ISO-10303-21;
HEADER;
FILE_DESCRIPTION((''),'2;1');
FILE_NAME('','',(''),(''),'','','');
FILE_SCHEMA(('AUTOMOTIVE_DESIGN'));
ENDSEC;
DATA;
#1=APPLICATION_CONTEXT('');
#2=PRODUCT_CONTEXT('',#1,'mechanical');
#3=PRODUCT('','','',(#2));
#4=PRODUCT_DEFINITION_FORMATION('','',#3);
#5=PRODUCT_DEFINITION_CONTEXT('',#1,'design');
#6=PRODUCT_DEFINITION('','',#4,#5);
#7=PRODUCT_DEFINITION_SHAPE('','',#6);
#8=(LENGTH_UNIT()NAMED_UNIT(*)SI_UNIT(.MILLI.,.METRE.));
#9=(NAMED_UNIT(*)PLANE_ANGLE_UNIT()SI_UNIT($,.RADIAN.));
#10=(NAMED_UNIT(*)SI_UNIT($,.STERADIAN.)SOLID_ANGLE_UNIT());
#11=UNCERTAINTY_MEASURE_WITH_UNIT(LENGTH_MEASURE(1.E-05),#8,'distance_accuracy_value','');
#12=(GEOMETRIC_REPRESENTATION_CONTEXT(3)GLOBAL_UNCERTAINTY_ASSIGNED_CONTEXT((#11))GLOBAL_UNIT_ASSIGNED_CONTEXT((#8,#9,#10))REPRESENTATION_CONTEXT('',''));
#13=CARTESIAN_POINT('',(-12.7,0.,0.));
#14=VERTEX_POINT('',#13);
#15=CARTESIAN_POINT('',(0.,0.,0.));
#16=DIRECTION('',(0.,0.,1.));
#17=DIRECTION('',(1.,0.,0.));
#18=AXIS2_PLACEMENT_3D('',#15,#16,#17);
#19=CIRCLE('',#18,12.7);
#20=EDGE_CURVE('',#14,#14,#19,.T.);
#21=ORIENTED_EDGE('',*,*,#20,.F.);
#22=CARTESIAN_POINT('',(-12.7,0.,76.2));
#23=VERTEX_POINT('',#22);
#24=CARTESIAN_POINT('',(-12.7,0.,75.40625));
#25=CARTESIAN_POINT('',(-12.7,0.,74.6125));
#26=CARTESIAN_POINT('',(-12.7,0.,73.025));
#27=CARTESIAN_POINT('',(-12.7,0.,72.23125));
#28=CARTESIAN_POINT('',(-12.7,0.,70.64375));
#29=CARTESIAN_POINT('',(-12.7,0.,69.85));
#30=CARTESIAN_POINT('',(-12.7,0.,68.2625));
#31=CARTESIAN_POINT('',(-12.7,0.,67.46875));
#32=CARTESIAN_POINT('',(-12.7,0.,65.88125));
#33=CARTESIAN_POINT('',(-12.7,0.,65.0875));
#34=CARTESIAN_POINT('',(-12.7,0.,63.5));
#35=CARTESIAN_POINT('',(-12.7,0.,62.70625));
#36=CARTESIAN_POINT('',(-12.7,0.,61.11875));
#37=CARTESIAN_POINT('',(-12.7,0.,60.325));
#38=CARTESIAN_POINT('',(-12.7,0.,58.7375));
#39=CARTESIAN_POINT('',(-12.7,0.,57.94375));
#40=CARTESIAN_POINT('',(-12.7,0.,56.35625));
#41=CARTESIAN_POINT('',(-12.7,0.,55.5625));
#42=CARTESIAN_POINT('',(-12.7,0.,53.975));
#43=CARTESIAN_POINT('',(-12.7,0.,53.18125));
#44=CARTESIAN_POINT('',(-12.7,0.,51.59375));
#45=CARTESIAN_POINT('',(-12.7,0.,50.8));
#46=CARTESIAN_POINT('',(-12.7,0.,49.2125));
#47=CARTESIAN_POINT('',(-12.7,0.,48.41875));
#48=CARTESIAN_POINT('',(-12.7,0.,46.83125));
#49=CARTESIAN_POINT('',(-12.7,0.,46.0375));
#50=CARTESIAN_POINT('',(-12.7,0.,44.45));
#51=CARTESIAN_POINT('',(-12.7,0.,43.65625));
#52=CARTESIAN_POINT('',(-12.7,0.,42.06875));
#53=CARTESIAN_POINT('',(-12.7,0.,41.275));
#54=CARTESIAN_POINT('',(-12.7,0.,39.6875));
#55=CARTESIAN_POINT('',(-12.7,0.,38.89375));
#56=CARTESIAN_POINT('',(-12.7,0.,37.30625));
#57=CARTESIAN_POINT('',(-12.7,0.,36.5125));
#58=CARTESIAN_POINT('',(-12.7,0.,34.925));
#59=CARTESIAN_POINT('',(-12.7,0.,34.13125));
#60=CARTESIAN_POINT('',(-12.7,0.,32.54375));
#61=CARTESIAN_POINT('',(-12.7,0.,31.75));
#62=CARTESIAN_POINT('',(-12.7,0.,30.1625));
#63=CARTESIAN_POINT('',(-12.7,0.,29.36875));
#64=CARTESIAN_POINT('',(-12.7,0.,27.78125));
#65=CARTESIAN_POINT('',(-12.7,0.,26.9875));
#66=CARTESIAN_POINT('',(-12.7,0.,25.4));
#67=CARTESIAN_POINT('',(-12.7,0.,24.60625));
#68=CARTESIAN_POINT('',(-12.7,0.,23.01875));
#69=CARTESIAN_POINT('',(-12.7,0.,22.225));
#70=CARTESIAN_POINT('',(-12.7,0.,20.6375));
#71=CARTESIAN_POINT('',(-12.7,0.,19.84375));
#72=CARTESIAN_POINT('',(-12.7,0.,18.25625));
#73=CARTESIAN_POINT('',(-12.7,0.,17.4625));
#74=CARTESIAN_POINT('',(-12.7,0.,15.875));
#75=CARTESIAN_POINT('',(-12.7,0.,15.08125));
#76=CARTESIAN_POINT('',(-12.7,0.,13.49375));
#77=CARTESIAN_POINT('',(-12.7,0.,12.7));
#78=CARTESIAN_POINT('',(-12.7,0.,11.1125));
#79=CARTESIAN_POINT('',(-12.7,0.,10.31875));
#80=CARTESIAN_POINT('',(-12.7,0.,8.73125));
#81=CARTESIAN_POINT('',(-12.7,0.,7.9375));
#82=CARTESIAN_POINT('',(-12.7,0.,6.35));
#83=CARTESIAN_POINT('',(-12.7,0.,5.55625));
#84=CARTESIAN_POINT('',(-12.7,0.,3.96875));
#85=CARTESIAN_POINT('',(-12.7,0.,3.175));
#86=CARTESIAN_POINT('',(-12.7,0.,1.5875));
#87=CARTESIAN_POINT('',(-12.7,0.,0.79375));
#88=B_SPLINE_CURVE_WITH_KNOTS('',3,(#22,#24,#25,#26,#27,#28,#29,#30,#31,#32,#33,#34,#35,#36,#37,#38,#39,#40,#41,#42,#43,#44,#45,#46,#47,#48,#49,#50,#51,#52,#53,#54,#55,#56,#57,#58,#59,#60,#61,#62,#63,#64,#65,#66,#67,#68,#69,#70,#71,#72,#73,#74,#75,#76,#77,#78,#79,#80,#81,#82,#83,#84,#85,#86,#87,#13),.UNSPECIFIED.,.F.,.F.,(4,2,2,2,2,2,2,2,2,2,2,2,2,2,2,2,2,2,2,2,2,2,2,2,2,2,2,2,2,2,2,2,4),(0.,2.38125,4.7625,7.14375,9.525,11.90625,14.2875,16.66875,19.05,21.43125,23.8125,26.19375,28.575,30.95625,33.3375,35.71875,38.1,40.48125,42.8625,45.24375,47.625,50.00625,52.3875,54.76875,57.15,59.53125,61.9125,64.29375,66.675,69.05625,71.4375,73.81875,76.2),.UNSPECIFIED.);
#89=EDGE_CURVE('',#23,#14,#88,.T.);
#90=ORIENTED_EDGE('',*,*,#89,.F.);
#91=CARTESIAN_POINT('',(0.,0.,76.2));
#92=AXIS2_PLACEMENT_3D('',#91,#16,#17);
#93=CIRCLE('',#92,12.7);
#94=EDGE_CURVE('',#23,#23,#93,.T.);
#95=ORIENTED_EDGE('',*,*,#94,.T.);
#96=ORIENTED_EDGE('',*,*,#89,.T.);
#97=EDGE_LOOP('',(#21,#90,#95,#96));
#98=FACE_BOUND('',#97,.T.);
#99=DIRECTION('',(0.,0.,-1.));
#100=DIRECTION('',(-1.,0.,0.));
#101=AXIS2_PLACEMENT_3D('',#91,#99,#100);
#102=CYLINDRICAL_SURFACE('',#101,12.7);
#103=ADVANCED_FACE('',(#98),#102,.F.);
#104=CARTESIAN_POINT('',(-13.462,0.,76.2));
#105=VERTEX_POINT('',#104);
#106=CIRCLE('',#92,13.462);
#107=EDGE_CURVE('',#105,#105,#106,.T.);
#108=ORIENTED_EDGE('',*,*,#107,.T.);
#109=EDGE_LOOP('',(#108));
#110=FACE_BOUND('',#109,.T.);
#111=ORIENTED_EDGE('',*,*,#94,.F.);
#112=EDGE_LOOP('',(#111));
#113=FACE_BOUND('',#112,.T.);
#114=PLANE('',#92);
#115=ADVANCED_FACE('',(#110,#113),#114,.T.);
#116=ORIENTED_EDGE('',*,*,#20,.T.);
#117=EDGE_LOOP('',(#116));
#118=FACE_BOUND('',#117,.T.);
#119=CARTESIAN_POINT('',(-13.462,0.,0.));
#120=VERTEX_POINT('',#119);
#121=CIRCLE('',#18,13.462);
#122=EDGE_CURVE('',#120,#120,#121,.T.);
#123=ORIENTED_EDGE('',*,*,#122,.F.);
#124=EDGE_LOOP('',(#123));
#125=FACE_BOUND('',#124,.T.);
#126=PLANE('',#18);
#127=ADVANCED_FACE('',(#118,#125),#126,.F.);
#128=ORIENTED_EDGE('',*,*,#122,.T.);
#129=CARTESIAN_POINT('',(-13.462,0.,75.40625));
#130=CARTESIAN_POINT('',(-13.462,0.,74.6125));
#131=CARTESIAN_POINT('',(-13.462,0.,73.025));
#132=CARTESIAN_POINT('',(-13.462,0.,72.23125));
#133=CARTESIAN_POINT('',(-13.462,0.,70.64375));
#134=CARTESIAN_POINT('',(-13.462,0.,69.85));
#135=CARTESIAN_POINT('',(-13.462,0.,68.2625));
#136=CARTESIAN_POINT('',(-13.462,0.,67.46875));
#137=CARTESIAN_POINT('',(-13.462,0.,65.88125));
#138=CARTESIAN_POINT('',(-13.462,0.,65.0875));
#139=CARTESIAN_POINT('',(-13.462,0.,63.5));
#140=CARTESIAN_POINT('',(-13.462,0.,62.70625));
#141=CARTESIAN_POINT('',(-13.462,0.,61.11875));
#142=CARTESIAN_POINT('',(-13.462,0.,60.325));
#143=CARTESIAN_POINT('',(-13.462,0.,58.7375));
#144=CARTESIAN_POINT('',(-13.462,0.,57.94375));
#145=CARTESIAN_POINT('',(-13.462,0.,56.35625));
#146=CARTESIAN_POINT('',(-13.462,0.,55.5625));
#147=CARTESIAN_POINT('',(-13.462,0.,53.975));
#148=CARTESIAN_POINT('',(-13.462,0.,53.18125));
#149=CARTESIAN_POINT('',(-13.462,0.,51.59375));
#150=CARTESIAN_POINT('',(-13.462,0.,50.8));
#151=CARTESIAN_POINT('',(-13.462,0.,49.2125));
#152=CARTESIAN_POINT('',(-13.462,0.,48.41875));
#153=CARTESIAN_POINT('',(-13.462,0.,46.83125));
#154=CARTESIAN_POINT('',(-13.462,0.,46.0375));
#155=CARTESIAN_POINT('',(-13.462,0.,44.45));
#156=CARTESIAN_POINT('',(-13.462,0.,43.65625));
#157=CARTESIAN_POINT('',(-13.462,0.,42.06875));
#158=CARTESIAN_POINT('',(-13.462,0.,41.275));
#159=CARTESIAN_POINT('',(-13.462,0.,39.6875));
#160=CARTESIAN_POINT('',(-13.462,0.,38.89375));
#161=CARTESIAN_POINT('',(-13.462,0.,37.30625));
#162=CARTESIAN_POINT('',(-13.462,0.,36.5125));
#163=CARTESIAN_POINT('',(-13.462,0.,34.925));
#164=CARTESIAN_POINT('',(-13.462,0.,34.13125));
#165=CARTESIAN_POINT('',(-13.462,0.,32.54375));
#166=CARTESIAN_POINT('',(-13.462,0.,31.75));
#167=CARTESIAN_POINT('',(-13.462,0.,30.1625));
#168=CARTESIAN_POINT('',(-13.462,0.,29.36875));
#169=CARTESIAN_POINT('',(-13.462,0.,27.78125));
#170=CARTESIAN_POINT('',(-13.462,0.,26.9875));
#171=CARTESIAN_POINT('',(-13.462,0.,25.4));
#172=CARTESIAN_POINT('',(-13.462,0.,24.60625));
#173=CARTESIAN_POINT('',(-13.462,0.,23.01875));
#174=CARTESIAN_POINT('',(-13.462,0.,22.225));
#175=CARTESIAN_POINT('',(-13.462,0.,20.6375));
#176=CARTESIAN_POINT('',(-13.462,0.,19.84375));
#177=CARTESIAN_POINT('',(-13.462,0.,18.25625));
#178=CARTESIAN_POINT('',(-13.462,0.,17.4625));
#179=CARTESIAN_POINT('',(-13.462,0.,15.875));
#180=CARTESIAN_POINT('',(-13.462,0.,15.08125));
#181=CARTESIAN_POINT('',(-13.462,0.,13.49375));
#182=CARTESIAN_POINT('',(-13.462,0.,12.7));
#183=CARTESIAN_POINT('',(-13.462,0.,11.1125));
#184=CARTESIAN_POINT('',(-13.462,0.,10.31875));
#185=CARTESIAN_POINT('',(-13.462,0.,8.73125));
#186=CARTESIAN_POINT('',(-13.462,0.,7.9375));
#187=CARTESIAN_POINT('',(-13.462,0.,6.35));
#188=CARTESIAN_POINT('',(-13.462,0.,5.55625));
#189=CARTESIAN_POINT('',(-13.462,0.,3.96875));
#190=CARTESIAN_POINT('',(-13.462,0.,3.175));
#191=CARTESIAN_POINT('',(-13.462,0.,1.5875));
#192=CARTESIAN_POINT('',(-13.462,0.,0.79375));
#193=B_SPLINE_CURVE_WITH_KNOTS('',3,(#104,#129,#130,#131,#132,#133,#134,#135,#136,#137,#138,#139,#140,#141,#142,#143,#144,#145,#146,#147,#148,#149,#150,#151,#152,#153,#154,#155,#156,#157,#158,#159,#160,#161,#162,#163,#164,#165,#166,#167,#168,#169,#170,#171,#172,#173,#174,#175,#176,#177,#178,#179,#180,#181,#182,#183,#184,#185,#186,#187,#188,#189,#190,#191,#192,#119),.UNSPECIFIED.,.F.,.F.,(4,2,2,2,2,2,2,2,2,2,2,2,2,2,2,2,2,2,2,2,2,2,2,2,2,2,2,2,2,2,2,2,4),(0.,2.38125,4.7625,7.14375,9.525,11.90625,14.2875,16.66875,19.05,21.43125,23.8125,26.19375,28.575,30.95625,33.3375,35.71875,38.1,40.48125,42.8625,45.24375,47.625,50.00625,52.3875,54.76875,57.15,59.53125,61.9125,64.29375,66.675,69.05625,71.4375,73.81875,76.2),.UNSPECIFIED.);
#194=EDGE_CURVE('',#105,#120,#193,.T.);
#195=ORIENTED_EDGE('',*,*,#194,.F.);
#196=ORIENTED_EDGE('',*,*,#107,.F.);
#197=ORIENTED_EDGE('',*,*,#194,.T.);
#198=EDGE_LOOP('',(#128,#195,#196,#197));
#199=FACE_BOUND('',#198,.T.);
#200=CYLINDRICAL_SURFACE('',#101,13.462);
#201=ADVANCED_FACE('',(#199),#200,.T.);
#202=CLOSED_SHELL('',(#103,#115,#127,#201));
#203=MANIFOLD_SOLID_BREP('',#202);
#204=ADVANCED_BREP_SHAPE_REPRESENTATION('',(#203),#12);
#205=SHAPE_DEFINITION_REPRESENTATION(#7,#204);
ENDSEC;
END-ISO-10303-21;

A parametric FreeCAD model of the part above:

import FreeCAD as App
import Part
import Sketcher

V = App.Vector
Q = App.Units.Quantity

doc = App.newDocument("Part")
params = doc.addObject("Spreadsheet::Sheet", "Params")
for row, (alias, value) in enumerate([
    ("sketch1_diameter", "1 in"),
    ("sketch1_diameter2", "1.06 in"),
    ("pad1_length", "3 in"),
], start=1):
    params.set(f"A{row}", alias)
    params.set(f"B{row}", "=" + value)
    params.setAlias(f"B{row}", alias)

body = doc.addObject("PartDesign::Body", "Body")

sketch1 = body.newObject("Sketcher::SketchObject", "Sketch")
sketch1.AttachmentSupport = (doc.getObject("XY_Plane"), [""])
sketch1.MapMode = "FlatFace"
sketch1.addGeometry([
    Part.Circle(V(0, 0, 0), V(0, 0, 1), 13),
    Part.Circle(V(0, 0, 0), V(0, 0, 1), 13),
], False)
sketch1.addConstraint([
    Sketcher.Constraint("Coincident", 0, 3, -1, 1),
    Sketcher.Constraint("Coincident", 1, 3, -1, 1),
    Sketcher.Constraint("Diameter", 1, Q("1 in")),
    Sketcher.Constraint("Diameter", 0, Q("1.06 in")),
])
sketch1.setExpression("Constraints[2]", "Params.sketch1_diameter")
sketch1.setExpression("Constraints[3]", "Params.sketch1_diameter2")
pad1 = body.newObject("PartDesign::Pad", "Pad")
pad1.Profile = sketch1
pad1.setExpression("Length", "Params.pad1_length")

doc.recompute()
